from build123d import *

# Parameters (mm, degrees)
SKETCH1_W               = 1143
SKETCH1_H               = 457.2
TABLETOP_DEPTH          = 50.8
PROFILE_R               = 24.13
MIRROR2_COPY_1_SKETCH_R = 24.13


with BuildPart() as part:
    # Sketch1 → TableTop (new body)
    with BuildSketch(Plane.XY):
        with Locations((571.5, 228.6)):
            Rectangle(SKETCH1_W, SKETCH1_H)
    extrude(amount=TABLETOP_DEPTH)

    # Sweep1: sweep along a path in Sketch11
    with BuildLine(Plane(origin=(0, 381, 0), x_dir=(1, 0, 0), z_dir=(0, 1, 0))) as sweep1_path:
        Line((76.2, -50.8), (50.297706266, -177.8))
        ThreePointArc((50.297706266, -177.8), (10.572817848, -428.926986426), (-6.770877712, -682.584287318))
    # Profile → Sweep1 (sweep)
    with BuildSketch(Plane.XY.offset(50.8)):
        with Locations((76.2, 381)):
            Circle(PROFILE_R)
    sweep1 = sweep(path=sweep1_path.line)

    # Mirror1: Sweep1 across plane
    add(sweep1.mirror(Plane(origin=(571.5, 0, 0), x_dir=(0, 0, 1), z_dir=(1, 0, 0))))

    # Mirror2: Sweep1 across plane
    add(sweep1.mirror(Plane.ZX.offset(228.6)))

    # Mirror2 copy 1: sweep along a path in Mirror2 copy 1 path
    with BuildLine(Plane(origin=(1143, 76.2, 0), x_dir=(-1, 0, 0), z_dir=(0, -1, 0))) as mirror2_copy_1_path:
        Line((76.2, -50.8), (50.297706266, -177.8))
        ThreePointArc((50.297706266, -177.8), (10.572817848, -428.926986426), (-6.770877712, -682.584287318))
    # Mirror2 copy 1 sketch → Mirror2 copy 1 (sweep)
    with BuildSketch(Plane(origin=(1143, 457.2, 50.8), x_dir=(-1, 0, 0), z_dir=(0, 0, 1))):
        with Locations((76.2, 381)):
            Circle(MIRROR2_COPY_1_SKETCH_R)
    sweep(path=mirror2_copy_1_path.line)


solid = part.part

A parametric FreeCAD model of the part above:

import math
import FreeCAD as App
import Part
import Sketcher
from FreeCAD import Vector
Q = App.Units.Quantity


def add_polygon(sketch, points):
    """Adds a closed chain of lines whose ends are joined by coincident constraints."""
    first, n = sketch.GeometryCount, len(points)
    for a, b in zip(points, points[1:] + points[:1]):
        sketch.addGeometry(Part.LineSegment(App.Vector(*a, 0), App.Vector(*b, 0)), False)
    for i in range(n):
        sketch.addConstraint(Sketcher.Constraint("Coincident", first + i, 2, first + (i + 1) % n, 1))

doc = App.newDocument("Part")
body = doc.addObject("PartDesign::Body", "Body")

sketch1 = body.newObject("Sketcher::SketchObject", "Sketch")
sketch1.AttachmentSupport = (doc.getObject("XY_Plane"), [""])
sketch1.MapMode = "FlatFace"
add_polygon(sketch1, [(0, 457), (0, 0), (1143, 0), (1143, 457)])
sketch1.addConstraint([
    Sketcher.Constraint("Vertical", 0),
    Sketcher.Constraint("Horizontal", 1),
    Sketcher.Constraint("Vertical", 2),
    Sketcher.Constraint("Horizontal", 3),
    Sketcher.Constraint("Coincident", 0, 2, -1, 1),
    Sketcher.Constraint("DistanceX", 1, 1, 1, 2, Q("45 in")),
    Sketcher.Constraint("DistanceY", 0, 2, 0, 1, Q("18 in")),
])
pad1 = body.newObject("PartDesign::Pad", "Pad")
pad1.Profile = sketch1
pad1.Length = Q("2 in")

sketch2 = body.newObject("Sketcher::SketchObject", "Sketch001")
sketch2.AttachmentSupport = (doc.getObject("XY_Plane"), [""])
sketch2.MapMode = "FlatFace"
sketch2.AttachmentOffset = App.Placement(Vector(0, 0, 2 * 25.4), App.Rotation())
sketch2.addGeometry(Part.Circle(Vector(76, 381, 0), Vector(0, 0, 1), 24), False)
sketch2.addConstraint([
    Sketcher.Constraint("Diameter", 0, Q("1.9 in")),
    Sketcher.Constraint("DistanceX", -1, 1, 0, 3, Q("3 in")),
    Sketcher.Constraint("DistanceY", -1, 1, 0, 3, Q("15 in")),
])

sketch3 = body.newObject("Sketcher::SketchObject", "Sketch002")
sketch3.AttachmentSupport = (doc.getObject("XZ_Plane"), [""])
sketch3.MapMode = "FlatFace"
sketch3.AttachmentOffset = App.Placement(Vector(0, 0, -15 * 25.4), App.Rotation())
sketch3.addGeometry([
    Part.LineSegment(Vector(76.2, 50.8, 0), Vector(50.297706, 177.8, 0)),
    Part.ArcOfCircle(Part.Circle(Vector(2862.387913, 751.340051, 0), Vector(0, 0, 1), 2869.982494), math.radians(-178.627242), math.radians(-168.472341)),
], False)
sketch3.addConstraint([
    Sketcher.Constraint("Tangent", 0, 2, 1, 2),
    Sketcher.Constraint("DistanceX", -1, 1, 0, 1, Q("3 in")),
    Sketcher.Constraint("DistanceY", -1, 1, 0, 1, Q("2 in")),
    Sketcher.Constraint("DistanceY", -1, 1, 0, 2, Q("7 in")),
    Sketcher.Constraint("Radius", 1, Q("2869.982494 mm")),
    Sketcher.Constraint("Distance", 0, Q("129.614539 mm")),
    Sketcher.Constraint("DistanceX", 1, 1, 1, 3, Q("2869.15879 mm")),
])
doc.recompute()

additivepipe = body.newObject("PartDesign::AdditivePipe", "AdditivePipe")
additivepipe.Profile = sketch2
additivepipe.Spine = (sketch3, ["Edge1", "Edge2"])
doc.recompute()

datumplane = body.newObject("PartDesign::Plane", "DatumPlane")
datumplane.AttachmentSupport = (doc.getObject("YZ_Plane"), [""])
datumplane.MapMode = "FlatFace"
datumplane.AttachmentOffset = App.Placement(Vector(0, 0, 22.5 * 25.4), App.Rotation())
mirrored = body.newObject("PartDesign::Mirrored", "Mirrored")
mirrored.Originals = [additivepipe]
mirrored.MirrorPlane = (datumplane, [""])
body.Tip = mirrored
doc.recompute()

datumplane2 = body.newObject("PartDesign::Plane", "DatumPlane001")
datumplane2.AttachmentSupport = (doc.getObject("XZ_Plane"), [""])
datumplane2.MapMode = "FlatFace"
datumplane2.AttachmentOffset = App.Placement(Vector(0, 0, -9 * 25.4), App.Rotation())
mirrored2 = body.newObject("PartDesign::Mirrored", "Mirrored001")
mirrored2.Originals = [additivepipe]
mirrored2.MirrorPlane = (datumplane2, [""])
body.Tip = mirrored2

sketch4 = body.newObject("Sketcher::SketchObject", "Sketch003")
sketch4.AttachmentSupport = (doc.getObject("XY_Plane"), [""])
sketch4.MapMode = "FlatFace"
sketch4.AttachmentOffset = App.Placement(Vector(0, 0, 2 * 25.4), App.Rotation())
sketch4.addGeometry(Part.Circle(Vector(1067, 76, 0), Vector(0, 0, 1), 24), False)
sketch4.addConstraint([
    Sketcher.Constraint("Diameter", 0, Q("1.9 in")),
    Sketcher.Constraint("DistanceX", -1, 1, 0, 3, Q("42 in")),
    Sketcher.Constraint("DistanceY", -1, 1, 0, 3, Q("3 in")),
])

sketch5 = body.newObject("Sketcher::SketchObject", "Sketch004")
sketch5.AttachmentSupport = (doc.getObject("XZ_Plane"), [""])
sketch5.MapMode = "FlatFace"
sketch5.AttachmentOffset = App.Placement(Vector(0, 0, -3 * 25.4), App.Rotation())
sketch5.addGeometry([
    Part.LineSegment(Vector(1066.8, 50.8, 0), Vector(1092.702294, 177.8, 0)),
    Part.ArcOfCircle(Part.Circle(Vector(-1719.387913, 751.340051, 0), Vector(0, 0, 1), 2869.982494), math.radians(-11.527659), math.radians(-1.372758)),
], False)
sketch5.addConstraint([
    Sketcher.Constraint("Tangent", 0, 2, 1, 1),
    Sketcher.Constraint("DistanceX", -1, 1, 0, 1, Q("42 in")),
    Sketcher.Constraint("DistanceY", -1, 1, 0, 1, Q("2 in")),
    Sketcher.Constraint("DistanceY", -1, 1, 0, 2, Q("7 in")),
    Sketcher.Constraint("Radius", 1, Q("2869.982494 mm")),
    Sketcher.Constraint("Distance", 0, Q("129.614539 mm")),
    Sketcher.Constraint("DistanceX", 1, 3, 1, 2, Q("2869.15879 mm")),
])
doc.recompute()

additivepipe2 = body.newObject("PartDesign::AdditivePipe", "AdditivePipe001")
additivepipe2.Profile = sketch4
additivepipe2.Spine = (sketch5, ["Edge1", "Edge2"])

doc.recompute()
